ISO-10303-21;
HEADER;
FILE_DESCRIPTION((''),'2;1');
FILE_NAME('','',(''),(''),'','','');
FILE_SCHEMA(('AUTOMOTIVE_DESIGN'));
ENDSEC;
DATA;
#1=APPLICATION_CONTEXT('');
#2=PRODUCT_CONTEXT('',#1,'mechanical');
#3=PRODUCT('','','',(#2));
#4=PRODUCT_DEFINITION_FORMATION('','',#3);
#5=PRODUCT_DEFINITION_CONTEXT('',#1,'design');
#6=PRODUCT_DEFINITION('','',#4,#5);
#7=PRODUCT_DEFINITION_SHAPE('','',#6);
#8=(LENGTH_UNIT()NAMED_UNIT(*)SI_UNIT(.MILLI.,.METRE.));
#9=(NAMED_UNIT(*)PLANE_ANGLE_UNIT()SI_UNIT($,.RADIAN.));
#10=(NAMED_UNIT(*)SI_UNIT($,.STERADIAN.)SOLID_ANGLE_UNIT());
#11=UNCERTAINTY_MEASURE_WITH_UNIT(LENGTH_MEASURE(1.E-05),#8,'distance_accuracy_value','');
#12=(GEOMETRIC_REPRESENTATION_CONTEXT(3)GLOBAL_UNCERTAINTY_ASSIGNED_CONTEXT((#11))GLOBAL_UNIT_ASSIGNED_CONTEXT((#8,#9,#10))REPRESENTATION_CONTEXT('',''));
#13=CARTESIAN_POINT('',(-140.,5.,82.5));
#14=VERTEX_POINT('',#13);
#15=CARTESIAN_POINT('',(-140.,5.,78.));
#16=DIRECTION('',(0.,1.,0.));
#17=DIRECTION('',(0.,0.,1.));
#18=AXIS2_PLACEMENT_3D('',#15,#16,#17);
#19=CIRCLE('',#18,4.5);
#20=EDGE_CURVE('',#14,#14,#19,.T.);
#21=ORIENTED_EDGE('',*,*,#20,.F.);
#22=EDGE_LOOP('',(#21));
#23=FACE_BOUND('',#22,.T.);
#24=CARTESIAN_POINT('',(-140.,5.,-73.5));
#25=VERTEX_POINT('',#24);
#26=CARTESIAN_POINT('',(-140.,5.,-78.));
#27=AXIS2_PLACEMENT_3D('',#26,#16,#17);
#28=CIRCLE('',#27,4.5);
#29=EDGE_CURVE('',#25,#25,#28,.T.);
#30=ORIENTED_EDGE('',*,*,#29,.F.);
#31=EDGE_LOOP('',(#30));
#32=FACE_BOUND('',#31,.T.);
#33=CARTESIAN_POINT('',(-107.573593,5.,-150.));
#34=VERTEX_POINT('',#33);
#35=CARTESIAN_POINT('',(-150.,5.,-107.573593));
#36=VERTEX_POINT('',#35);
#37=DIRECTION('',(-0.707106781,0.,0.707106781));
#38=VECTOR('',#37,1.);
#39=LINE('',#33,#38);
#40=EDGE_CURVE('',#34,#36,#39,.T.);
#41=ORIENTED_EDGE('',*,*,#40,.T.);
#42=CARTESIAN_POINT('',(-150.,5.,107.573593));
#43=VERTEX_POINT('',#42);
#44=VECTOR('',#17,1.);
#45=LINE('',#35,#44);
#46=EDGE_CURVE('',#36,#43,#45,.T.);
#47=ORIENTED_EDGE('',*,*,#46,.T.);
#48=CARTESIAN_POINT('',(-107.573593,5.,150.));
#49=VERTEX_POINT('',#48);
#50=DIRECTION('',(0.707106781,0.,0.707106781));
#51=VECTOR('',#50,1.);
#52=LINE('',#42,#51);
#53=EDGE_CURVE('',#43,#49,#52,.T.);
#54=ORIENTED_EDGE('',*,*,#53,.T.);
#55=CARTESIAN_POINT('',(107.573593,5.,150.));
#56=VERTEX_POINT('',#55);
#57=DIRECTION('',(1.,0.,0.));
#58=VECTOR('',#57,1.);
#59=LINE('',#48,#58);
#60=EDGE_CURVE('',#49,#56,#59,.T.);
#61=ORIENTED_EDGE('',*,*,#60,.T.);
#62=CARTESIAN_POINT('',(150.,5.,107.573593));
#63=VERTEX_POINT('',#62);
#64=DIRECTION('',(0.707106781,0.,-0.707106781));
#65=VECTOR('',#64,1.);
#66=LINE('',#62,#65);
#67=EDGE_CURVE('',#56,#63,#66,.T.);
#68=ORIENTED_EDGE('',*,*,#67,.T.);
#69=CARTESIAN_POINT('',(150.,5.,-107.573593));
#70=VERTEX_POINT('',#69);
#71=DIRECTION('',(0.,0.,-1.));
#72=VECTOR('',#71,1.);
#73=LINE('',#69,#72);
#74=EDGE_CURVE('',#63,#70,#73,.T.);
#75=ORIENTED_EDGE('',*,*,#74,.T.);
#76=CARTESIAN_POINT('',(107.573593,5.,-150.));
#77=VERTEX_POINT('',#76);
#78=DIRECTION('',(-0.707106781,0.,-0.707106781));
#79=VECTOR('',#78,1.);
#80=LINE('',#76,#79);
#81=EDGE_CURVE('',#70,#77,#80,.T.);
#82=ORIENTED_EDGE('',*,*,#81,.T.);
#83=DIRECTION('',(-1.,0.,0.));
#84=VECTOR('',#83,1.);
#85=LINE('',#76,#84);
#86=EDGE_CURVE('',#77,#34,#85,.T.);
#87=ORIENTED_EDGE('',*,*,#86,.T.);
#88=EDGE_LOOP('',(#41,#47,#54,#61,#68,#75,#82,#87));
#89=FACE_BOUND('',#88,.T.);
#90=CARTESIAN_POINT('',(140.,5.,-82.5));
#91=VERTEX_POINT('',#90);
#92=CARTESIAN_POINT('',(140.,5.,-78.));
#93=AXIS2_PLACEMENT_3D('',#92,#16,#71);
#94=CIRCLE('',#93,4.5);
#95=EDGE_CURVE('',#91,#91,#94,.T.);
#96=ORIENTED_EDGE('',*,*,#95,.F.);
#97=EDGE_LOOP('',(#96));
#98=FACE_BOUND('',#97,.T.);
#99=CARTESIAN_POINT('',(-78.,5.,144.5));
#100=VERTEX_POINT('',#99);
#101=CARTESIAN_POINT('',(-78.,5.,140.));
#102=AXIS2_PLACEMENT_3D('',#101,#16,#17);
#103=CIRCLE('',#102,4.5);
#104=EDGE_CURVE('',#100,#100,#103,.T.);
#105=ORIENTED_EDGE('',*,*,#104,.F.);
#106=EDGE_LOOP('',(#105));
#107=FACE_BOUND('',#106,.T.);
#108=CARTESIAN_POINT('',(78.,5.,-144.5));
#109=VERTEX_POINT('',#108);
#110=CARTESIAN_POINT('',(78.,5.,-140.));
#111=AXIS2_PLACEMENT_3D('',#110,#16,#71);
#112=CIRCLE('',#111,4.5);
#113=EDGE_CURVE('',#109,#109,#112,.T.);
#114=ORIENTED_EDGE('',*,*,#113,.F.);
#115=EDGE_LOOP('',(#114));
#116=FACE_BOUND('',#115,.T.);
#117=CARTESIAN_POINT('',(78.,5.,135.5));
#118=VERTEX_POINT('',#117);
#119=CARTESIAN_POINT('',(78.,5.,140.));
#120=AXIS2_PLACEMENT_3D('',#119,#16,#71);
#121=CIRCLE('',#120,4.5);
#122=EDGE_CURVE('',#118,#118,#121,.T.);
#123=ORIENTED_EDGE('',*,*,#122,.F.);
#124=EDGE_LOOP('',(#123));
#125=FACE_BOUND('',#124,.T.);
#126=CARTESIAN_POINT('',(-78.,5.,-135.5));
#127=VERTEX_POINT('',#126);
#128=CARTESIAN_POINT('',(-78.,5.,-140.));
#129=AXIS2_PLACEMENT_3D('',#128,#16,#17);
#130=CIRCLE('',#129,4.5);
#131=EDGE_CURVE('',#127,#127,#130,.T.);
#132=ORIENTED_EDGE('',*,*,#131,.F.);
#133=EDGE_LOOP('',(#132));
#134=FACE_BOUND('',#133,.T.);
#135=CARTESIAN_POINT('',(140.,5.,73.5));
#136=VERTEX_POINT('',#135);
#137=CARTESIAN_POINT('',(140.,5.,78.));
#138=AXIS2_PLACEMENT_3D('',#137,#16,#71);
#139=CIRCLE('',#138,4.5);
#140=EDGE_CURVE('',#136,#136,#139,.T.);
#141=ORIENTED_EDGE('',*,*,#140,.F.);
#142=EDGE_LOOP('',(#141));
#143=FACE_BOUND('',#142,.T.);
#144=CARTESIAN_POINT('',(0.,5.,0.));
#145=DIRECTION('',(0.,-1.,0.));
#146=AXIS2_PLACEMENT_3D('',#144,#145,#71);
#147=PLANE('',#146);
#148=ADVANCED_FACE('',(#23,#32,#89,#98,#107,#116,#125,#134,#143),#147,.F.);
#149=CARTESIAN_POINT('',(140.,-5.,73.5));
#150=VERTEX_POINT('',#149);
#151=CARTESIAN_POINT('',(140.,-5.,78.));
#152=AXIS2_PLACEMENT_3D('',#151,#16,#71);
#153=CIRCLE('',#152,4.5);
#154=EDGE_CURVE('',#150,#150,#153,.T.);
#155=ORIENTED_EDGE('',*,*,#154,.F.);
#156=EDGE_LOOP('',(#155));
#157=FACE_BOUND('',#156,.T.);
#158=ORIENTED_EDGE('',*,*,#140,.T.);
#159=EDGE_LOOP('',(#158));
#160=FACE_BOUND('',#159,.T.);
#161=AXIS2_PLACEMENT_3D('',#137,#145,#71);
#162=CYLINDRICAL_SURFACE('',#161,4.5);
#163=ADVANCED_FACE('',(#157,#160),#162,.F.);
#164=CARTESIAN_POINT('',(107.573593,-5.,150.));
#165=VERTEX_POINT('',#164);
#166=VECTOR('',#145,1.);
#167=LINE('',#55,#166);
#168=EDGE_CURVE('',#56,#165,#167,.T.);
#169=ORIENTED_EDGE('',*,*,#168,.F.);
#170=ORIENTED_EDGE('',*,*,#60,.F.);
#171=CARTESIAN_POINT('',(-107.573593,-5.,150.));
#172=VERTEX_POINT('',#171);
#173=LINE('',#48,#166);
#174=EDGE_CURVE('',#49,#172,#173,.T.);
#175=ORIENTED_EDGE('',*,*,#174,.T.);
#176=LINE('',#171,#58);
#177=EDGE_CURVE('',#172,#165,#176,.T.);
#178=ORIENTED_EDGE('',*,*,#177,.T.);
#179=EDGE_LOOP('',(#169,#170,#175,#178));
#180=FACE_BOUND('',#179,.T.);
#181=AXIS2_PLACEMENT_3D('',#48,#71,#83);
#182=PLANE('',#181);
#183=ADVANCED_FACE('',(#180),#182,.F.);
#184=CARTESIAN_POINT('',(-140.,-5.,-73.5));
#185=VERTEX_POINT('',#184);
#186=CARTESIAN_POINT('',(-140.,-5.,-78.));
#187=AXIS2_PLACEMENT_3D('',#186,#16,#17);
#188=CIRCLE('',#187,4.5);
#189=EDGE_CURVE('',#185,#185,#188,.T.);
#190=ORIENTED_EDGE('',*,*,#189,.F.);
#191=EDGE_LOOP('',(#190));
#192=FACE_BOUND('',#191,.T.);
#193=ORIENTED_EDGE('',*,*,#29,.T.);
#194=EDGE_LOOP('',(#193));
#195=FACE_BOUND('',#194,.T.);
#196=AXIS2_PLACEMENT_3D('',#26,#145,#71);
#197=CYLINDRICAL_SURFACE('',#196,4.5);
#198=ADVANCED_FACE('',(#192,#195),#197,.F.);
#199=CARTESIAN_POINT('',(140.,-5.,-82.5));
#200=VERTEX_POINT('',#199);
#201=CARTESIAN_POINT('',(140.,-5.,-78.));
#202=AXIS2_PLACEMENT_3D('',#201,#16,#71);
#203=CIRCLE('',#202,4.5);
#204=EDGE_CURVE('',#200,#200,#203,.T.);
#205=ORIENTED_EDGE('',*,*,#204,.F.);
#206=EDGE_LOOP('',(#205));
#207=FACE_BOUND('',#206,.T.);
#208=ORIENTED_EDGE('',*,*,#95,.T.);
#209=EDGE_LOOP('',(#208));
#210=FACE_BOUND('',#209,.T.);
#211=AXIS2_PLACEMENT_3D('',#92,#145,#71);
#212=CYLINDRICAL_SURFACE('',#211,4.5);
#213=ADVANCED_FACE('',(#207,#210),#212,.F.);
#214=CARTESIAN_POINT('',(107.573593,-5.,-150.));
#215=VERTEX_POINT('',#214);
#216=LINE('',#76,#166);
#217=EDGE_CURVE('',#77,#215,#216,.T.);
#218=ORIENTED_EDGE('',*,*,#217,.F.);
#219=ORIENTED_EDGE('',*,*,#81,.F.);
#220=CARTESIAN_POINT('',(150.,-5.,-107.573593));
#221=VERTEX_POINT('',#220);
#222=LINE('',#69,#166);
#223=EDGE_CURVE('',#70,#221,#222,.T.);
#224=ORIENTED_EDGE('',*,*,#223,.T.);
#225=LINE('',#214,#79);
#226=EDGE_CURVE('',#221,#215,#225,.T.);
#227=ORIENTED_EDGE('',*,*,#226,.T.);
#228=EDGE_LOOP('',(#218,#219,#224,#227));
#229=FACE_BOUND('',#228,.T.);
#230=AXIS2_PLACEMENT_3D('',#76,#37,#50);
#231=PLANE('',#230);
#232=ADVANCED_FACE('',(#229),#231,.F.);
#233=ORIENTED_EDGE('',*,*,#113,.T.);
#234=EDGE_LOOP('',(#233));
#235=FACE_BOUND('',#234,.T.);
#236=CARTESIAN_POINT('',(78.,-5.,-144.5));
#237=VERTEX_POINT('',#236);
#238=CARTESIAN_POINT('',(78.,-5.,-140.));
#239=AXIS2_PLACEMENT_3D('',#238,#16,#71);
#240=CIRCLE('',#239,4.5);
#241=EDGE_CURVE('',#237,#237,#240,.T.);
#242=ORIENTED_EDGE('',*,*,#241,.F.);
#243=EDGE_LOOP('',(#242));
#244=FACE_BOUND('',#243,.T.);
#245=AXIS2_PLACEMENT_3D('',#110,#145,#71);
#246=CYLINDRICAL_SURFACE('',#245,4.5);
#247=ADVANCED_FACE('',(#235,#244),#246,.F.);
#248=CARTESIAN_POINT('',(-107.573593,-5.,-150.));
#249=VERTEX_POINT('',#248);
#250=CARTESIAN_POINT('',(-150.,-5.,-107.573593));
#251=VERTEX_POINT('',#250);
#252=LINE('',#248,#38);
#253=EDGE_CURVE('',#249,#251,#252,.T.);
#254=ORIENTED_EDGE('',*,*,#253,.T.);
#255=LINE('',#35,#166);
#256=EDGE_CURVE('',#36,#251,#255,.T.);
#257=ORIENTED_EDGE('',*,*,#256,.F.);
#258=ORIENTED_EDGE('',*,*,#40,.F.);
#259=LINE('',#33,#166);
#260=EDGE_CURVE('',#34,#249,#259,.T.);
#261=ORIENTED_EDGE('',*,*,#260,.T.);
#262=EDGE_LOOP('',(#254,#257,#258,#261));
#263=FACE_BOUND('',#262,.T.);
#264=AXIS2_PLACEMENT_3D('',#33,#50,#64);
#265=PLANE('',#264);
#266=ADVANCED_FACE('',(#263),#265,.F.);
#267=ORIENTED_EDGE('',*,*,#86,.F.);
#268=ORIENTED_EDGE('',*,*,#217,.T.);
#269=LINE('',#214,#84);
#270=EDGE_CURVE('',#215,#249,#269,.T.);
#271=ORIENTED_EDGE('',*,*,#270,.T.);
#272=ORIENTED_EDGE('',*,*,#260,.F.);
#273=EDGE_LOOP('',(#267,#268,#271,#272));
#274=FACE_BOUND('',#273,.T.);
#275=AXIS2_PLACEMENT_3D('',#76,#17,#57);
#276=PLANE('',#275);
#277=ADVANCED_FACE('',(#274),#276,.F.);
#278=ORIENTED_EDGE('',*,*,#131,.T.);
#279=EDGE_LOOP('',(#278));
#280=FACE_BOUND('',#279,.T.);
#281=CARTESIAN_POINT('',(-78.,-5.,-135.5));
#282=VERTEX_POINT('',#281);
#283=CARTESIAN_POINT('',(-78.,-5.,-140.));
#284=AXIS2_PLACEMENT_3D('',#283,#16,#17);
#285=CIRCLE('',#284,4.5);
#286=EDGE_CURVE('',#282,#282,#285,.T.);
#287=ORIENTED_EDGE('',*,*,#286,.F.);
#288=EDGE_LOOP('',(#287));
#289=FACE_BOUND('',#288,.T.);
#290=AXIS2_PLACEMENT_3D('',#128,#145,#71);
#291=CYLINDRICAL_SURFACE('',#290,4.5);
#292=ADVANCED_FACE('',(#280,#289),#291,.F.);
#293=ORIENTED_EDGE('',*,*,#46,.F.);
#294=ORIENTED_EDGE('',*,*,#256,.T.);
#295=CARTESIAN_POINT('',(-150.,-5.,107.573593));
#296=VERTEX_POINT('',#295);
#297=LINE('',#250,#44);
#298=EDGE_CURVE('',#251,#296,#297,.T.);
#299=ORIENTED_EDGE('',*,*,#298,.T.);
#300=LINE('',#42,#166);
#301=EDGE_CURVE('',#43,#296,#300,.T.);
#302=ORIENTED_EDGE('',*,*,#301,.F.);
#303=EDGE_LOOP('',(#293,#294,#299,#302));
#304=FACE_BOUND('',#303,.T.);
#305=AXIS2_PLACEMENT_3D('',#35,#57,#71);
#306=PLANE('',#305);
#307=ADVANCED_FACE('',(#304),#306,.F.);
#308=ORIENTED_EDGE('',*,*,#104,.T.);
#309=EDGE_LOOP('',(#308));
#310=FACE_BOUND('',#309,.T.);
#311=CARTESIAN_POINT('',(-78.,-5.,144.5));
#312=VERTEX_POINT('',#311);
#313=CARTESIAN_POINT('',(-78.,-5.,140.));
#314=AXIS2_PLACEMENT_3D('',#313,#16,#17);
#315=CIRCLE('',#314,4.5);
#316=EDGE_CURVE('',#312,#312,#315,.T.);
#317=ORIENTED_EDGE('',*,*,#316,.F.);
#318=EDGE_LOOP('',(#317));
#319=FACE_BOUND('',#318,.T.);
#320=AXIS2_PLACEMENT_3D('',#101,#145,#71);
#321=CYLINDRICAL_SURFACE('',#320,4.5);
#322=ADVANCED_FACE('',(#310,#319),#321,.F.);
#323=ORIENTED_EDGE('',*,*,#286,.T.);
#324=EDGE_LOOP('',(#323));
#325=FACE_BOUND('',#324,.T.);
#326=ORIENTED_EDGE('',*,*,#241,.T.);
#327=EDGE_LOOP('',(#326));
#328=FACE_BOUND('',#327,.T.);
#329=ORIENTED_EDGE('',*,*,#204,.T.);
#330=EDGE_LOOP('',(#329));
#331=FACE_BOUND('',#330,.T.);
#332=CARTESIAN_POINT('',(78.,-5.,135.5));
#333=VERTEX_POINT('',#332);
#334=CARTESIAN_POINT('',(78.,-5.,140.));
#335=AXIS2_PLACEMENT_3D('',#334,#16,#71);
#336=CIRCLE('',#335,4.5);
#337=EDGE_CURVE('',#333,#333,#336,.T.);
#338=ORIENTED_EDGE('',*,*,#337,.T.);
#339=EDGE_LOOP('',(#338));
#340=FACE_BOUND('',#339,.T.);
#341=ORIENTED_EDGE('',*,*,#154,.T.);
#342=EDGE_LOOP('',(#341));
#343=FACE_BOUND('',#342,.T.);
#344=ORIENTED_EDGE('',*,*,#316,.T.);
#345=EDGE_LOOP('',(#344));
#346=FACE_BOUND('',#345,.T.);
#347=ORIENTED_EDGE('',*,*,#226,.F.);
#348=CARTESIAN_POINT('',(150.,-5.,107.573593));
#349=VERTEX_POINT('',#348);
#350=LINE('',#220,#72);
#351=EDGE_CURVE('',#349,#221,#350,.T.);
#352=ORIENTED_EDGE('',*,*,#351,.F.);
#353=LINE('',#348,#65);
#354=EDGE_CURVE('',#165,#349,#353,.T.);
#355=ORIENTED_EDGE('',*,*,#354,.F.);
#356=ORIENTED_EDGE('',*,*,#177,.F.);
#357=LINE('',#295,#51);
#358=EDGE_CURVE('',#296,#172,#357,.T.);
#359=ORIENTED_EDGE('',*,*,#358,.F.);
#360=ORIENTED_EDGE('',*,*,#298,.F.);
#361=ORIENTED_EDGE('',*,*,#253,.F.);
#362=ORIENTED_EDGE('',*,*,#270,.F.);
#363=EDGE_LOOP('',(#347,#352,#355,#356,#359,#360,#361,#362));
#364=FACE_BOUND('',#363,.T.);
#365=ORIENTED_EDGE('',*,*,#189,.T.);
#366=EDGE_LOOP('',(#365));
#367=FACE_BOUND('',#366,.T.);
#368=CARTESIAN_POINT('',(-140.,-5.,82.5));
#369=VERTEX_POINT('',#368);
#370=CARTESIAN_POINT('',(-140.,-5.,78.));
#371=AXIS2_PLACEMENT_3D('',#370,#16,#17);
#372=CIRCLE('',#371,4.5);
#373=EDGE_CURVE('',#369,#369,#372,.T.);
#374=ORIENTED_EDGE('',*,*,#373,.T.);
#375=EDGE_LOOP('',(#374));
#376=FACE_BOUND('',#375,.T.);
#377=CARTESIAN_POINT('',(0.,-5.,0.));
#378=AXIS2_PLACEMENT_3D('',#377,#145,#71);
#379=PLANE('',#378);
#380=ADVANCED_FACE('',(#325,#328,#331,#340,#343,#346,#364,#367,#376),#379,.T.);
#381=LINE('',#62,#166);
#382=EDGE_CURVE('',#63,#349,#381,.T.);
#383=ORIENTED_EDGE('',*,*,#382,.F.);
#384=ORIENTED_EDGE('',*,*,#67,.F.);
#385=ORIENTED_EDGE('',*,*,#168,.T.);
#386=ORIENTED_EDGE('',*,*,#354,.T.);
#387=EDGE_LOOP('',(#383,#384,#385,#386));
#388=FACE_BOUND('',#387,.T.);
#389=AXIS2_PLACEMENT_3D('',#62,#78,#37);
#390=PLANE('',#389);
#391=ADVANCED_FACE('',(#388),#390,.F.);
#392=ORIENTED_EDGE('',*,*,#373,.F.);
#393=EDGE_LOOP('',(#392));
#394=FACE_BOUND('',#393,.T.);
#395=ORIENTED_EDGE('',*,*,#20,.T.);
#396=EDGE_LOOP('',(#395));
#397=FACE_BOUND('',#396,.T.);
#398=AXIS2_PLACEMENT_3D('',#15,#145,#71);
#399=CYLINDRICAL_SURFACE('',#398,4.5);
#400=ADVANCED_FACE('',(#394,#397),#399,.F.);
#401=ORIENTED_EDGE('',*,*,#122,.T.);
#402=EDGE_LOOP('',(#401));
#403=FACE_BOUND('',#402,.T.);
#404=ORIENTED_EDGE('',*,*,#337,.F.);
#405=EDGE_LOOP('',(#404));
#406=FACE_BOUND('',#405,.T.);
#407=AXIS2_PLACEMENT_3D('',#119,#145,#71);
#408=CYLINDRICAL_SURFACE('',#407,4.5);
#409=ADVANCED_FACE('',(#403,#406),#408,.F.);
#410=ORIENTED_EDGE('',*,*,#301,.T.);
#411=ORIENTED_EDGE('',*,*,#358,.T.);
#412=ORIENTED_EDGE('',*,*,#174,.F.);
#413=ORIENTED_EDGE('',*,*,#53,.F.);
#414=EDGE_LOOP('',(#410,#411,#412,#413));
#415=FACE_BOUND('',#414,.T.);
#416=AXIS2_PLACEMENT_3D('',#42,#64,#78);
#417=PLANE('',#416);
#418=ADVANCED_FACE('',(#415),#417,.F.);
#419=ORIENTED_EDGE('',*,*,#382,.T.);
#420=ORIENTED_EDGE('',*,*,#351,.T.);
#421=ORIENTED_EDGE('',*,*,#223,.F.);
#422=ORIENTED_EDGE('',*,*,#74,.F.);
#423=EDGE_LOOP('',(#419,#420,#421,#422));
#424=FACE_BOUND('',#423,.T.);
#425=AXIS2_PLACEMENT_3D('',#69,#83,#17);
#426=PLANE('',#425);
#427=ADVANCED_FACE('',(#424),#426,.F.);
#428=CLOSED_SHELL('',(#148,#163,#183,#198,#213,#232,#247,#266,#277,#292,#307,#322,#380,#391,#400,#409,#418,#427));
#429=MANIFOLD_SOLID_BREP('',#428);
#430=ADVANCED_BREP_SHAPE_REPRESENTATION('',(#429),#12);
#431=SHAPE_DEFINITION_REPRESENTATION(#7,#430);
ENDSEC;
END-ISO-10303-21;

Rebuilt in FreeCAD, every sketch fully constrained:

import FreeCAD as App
import Part
import Sketcher

V = App.Vector


def add_polygon(sketch, points):
    """Adds a closed chain of lines whose ends are joined by coincident constraints."""
    first, n = sketch.GeometryCount, len(points)
    for a, b in zip(points, points[1:] + points[:1]):
        sketch.addGeometry(Part.LineSegment(App.Vector(*a, 0), App.Vector(*b, 0)), False)
    for i in range(n):
        sketch.addConstraint(Sketcher.Constraint("Coincident", first + i, 2, first + (i + 1) % n, 1))

doc = App.newDocument("Part")
body = doc.addObject("PartDesign::Body", "Body")

sketch1 = doc.addObject("Sketcher::SketchObject", "Sketch")
body.addObject(sketch1)
sketch1.AttachmentSupport = (doc.XZ_Plane, [""])
sketch1.MapMode = "FlatFace"
add_polygon(sketch1, [(107.573593, -150), (-107.573593, -150), (-150, -107.573593), (-150, 107.573593), (-107.573593, 150), (107.573593, 150), (150, 107.573593), (150, -107.573593)])
sketch1.addGeometry(Part.Circle(V(-78, 140, 0), V(0, 0, 1), 4.5), False)
sketch1.addGeometry(Part.Circle(V(-140, 78, 0), V(0, 0, 1), 4.5), False)
sketch1.addGeometry(Part.Circle(V(78, 140, 0), V(0, 0, 1), 4.5), False)
sketch1.addGeometry(Part.Circle(V(140, 78, 0), V(0, 0, 1), 4.5), False)
sketch1.addGeometry(Part.Circle(V(-140, -78, 0), V(0, 0, 1), 4.5), False)
sketch1.addGeometry(Part.Circle(V(-78, -140, 0), V(0, 0, 1), 4.5), False)
sketch1.addGeometry(Part.Circle(V(140, -78, 0), V(0, 0, 1), 4.5), False)
sketch1.addGeometry(Part.Circle(V(78, -140, 0), V(0, 0, 1), 4.5), False)
sketch1.addConstraint(Sketcher.Constraint("Horizontal", 0))
sketch1.addConstraint(Sketcher.Constraint("Vertical", 2))
sketch1.addConstraint(Sketcher.Constraint("Horizontal", 4))
sketch1.addConstraint(Sketcher.Constraint("Vertical", 6))
sketch1.addConstraint(Sketcher.Constraint("Equal", 8, 9))
sketch1.addConstraint(Sketcher.Constraint("Equal", 9, 10))
sketch1.addConstraint(Sketcher.Constraint("Equal", 10, 11))
sketch1.addConstraint(Sketcher.Constraint("Equal", 11, 12))
sketch1.addConstraint(Sketcher.Constraint("Equal", 12, 13))
sketch1.addConstraint(Sketcher.Constraint("Equal", 13, 14))
sketch1.addConstraint(Sketcher.Constraint("Equal", 14, 15))
sketch1.addConstraint(Sketcher.Constraint("Symmetric", 11, 3, 12, 3, -1, 1))
sketch1.addConstraint(Sketcher.Constraint("Symmetric", 10, 3, 13, 3, -1, 1))
sketch1.addConstraint(Sketcher.Constraint("Symmetric", 9, 3, 14, 3, -1, 1))
sketch1.addConstraint(Sketcher.Constraint("Symmetric", 8, 3, 15, 3, -1, 1))
sketch1.addConstraint(Sketcher.Constraint("Symmetric", 0, 2, 4, 2, -1, 1))
sketch1.addConstraint(Sketcher.Constraint("Symmetric", 1, 2, 5, 2, -1, 1))
sketch1.addConstraint(Sketcher.Constraint("Symmetric", 8, 3, 10, 3, -2))
sketch1.addConstraint(Sketcher.Constraint("Symmetric", 9, 3, 11, 3, -2))
sketch1.addConstraint(Sketcher.Constraint("Perpendicular", 1, 3))
sketch1.addConstraint(Sketcher.Constraint("Perpendicular", 5, 7))
sketch1.addConstraint(Sketcher.Constraint("Horizontal", 2, 2, 5, 2))
sketch1.addConstraint(Sketcher.Constraint("Horizontal", 1, 2, 6, 2))
sketch1.addConstraint(Sketcher.Constraint("Vertical", 0, 2, 3, 2))
sketch1.addConstraint(Sketcher.Constraint("Equal", 4, 2))
sketch1.addConstraint(Sketcher.Constraint("Diameter", 8, 9.0))
sketch1.addConstraint(Sketcher.Constraint("Distance", 1, 60.0))
sketch1.addConstraint(Sketcher.Constraint("DistanceX", 8, 3, -1, 1, 78.0))
sketch1.addConstraint(Sketcher.Constraint("DistanceY", -1, 1, 8, 3, 140.0))
sketch1.addConstraint(Sketcher.Constraint("DistanceX", 9, 3, -1, 1, 140.0))
sketch1.addConstraint(Sketcher.Constraint("DistanceY", -1, 1, 9, 3, 78.0))
sketch1.addConstraint(Sketcher.Constraint("DistanceY", 0, 2, -1, 1, 150.0))
pad1 = doc.addObject("PartDesign::Pad", "Pad")
body.addObject(pad1)
pad1.Profile = sketch1
pad1.Length = 10
pad1.Midplane = True

doc.recompute()
